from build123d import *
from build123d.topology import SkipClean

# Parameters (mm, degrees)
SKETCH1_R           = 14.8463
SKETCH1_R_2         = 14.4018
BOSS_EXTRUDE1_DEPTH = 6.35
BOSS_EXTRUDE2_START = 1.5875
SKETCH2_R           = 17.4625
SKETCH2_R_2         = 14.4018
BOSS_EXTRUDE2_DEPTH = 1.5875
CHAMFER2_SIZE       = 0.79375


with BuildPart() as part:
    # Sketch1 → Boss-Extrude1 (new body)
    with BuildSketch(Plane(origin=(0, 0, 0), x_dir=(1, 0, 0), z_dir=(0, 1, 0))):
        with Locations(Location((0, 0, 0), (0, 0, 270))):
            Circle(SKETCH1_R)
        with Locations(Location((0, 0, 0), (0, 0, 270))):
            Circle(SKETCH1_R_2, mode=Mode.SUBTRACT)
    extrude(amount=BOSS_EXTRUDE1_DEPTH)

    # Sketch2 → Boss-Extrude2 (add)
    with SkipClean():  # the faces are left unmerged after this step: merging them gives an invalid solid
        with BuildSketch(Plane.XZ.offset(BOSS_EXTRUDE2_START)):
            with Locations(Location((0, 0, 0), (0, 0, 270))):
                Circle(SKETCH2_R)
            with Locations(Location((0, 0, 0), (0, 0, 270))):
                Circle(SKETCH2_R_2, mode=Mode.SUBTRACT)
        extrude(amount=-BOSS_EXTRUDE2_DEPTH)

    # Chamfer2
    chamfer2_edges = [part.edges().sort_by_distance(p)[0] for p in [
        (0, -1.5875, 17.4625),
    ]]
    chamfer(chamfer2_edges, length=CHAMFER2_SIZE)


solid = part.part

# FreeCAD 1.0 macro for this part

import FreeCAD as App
import Part
import Sketcher

V = App.Vector
Q = App.Units.Quantity


def edges_at(feature, points):
    """Names of the edges that pass closest to the given points."""
    edges = feature.Shape.Edges
    near = lambda p: min(range(len(edges)), key=lambda i: edges[i].distToShape(Part.Vertex(*p))[0])
    return sorted({f"Edge{near(p) + 1}" for p in points})

doc = App.newDocument("Part")
body = doc.addObject("PartDesign::Body", "Body")

# Sketch on XZ plane
sketch1 = doc.addObject("Sketcher::SketchObject", "Sketch")
body.addObject(sketch1)
sketch1.AttachmentSupport = (doc.XZ_Plane, [""])
sketch1.MapMode = "FlatFace"
sketch1.addGeometry([
    Part.Circle(V(0, 0, 0), V(0, 0, 1), 15),
    Part.Circle(V(0, 0, 0), V(0, 0, 1), 14),
], False)
sketch1.addConstraint([
    Sketcher.Constraint("Coincident", 0, 3, -1, 1),
    Sketcher.Constraint("Coincident", 1, 3, -1, 1),
    Sketcher.Constraint("Diameter", 0, Q("1.169 in")),
    Sketcher.Constraint("Diameter", 1, Q("1.134 in")),
])
pad1 = doc.addObject("PartDesign::Pad", "Pad")
body.addObject(pad1)
pad1.Profile = sketch1
pad1.Length = Q("0.25 in")
pad1.Reversed = True

# Sketch on XZ plane
sketch2 = doc.addObject("Sketcher::SketchObject", "Sketch001")
body.addObject(sketch2)
sketch2.AttachmentSupport = (doc.XZ_Plane, [""])
sketch2.MapMode = "FlatFace"
sketch2.AttachmentOffset = App.Placement(V(0, 0, 0.0625 * 25.4), App.Rotation())
sketch2.addGeometry([
    Part.Circle(V(0, 0, 0), V(0, 0, 1), 17),
    Part.Circle(V(0, 0, 0), V(0, 0, 1), 14),
], False)
sketch2.addConstraint([
    Sketcher.Constraint("Coincident", 0, 3, -1, 1),
    Sketcher.Constraint("Coincident", 1, 3, -1, 1),
    Sketcher.Constraint("Diameter", 0, Q("1.375 in")),
    Sketcher.Constraint("Diameter", 1, Q("1.134 in")),
])
pad2 = doc.addObject("PartDesign::Pad", "Pad001")
body.addObject(pad2)
pad2.Profile = sketch2
pad2.Length = Q("0.0625 in")
pad2.Reversed = True
doc.recompute()

chamfer = doc.addObject("PartDesign::Chamfer", "Chamfer")
body.addObject(chamfer)
chamfer.Base = (pad2, edges_at(pad2, [(0, -1.587, 17.462)]))
chamfer.Size = Q("0.03125 in")

doc.recompute()
